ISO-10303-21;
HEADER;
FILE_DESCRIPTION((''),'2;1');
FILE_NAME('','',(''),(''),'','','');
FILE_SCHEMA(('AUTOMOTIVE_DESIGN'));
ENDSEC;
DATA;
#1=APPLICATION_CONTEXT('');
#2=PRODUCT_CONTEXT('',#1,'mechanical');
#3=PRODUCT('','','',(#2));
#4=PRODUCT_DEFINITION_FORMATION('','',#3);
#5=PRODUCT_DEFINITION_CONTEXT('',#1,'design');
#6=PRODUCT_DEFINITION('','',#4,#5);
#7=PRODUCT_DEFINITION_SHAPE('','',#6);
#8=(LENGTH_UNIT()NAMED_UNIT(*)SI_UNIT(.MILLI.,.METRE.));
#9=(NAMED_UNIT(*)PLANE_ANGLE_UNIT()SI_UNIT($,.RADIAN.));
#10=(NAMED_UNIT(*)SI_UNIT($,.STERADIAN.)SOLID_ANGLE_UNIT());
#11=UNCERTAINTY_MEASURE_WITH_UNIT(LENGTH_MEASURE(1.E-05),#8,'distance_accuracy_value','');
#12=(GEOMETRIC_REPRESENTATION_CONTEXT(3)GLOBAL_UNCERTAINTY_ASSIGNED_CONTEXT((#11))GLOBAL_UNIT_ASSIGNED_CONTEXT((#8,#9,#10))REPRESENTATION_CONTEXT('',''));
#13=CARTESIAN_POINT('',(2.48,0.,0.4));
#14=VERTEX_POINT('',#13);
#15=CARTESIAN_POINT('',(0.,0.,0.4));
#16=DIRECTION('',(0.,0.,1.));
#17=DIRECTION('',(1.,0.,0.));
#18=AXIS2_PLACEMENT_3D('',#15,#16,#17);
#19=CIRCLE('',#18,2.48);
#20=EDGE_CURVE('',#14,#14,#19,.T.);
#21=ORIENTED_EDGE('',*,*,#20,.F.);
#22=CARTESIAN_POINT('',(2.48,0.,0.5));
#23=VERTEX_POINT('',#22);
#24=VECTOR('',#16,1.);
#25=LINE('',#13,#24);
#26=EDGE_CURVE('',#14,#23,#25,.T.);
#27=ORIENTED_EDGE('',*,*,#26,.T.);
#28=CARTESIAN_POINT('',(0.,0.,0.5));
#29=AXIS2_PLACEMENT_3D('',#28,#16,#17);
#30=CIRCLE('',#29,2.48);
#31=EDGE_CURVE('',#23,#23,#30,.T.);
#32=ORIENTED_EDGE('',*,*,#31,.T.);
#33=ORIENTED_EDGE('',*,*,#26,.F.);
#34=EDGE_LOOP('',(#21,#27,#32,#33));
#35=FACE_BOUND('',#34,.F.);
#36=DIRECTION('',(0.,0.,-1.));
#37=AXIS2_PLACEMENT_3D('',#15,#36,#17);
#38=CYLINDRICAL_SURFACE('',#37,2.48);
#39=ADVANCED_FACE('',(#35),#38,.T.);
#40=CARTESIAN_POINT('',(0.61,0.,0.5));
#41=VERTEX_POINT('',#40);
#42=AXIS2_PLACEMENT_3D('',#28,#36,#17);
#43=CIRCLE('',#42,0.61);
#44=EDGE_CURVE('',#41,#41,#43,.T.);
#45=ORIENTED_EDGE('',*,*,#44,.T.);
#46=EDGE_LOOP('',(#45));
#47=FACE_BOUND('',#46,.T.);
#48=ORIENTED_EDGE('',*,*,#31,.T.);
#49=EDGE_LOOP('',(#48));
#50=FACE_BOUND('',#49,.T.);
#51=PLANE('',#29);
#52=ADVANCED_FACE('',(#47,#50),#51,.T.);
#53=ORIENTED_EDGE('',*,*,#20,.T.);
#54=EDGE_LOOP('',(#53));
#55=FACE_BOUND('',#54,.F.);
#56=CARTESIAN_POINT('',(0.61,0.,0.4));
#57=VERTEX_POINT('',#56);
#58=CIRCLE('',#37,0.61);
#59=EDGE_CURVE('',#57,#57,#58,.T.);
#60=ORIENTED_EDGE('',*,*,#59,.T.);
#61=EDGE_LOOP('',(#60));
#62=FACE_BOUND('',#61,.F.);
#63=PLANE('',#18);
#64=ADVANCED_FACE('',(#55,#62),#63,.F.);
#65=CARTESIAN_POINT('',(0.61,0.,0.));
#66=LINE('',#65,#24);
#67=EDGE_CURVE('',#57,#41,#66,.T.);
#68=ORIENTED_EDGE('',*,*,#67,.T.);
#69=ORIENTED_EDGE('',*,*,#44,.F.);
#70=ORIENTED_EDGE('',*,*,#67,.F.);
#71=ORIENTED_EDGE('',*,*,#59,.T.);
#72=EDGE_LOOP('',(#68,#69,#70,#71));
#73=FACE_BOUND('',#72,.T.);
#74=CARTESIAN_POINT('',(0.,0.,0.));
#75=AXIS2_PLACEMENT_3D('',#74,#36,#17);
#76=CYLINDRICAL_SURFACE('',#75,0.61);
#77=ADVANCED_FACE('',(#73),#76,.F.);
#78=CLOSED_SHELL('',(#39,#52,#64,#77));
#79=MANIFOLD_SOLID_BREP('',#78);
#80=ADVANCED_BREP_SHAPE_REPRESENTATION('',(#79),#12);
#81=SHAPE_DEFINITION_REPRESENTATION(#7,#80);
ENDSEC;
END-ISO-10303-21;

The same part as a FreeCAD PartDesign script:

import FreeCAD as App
import Part
import Sketcher
from FreeCAD import Vector

doc = App.newDocument("Part")
body = doc.addObject("PartDesign::Body", "Body")

# Sketch on XY plane
sketch1 = body.newObject("Sketcher::SketchObject", "Sketch")
sketch1.AttachmentSupport = (doc.getObject("XY_Plane"), [""])
sketch1.MapMode = "FlatFace"
sketch1.addGeometry(Part.Circle(Vector(0, 0, 0), Vector(0, 0, 1), 0.6), False)
sketch1.addConstraint([
    Sketcher.Constraint("Coincident", 0, 3, -1, 1),
    Sketcher.Constraint("Diameter", 0, 1.22),
])
pad1 = body.newObject("PartDesign::Pad", "Pad")
pad1.Profile = sketch1
pad1.Length = 10
body2 = doc.addObject("PartDesign::Body", "Body001")

# Sketch on XY plane
sketch2 = body2.newObject("Sketcher::SketchObject", "Sketch001")
sketch2.AttachmentSupport = (doc.getObject("XY_Plane001"), [""])
sketch2.MapMode = "FlatFace"
sketch2.AttachmentOffset = App.Placement(Vector(0, 0, 0.4), App.Rotation())
sketch2.addGeometry(Part.Circle(Vector(0, 0, 0), Vector(0, 0, 1), 2.5), False)
sketch2.addConstraint([
    Sketcher.Constraint("Coincident", 0, 3, -1, 1),
    Sketcher.Constraint("Diameter", 0, 4.96),
])
pad2 = body2.newObject("PartDesign::Pad", "Pad001")
pad2.Profile = sketch2
pad2.Length = 0.1
doc.recompute()

boolean = body2.newObject("PartDesign::Boolean", "Boolean")
boolean.Type = "Cut"
boolean.addObjects([body])

doc.recompute()
